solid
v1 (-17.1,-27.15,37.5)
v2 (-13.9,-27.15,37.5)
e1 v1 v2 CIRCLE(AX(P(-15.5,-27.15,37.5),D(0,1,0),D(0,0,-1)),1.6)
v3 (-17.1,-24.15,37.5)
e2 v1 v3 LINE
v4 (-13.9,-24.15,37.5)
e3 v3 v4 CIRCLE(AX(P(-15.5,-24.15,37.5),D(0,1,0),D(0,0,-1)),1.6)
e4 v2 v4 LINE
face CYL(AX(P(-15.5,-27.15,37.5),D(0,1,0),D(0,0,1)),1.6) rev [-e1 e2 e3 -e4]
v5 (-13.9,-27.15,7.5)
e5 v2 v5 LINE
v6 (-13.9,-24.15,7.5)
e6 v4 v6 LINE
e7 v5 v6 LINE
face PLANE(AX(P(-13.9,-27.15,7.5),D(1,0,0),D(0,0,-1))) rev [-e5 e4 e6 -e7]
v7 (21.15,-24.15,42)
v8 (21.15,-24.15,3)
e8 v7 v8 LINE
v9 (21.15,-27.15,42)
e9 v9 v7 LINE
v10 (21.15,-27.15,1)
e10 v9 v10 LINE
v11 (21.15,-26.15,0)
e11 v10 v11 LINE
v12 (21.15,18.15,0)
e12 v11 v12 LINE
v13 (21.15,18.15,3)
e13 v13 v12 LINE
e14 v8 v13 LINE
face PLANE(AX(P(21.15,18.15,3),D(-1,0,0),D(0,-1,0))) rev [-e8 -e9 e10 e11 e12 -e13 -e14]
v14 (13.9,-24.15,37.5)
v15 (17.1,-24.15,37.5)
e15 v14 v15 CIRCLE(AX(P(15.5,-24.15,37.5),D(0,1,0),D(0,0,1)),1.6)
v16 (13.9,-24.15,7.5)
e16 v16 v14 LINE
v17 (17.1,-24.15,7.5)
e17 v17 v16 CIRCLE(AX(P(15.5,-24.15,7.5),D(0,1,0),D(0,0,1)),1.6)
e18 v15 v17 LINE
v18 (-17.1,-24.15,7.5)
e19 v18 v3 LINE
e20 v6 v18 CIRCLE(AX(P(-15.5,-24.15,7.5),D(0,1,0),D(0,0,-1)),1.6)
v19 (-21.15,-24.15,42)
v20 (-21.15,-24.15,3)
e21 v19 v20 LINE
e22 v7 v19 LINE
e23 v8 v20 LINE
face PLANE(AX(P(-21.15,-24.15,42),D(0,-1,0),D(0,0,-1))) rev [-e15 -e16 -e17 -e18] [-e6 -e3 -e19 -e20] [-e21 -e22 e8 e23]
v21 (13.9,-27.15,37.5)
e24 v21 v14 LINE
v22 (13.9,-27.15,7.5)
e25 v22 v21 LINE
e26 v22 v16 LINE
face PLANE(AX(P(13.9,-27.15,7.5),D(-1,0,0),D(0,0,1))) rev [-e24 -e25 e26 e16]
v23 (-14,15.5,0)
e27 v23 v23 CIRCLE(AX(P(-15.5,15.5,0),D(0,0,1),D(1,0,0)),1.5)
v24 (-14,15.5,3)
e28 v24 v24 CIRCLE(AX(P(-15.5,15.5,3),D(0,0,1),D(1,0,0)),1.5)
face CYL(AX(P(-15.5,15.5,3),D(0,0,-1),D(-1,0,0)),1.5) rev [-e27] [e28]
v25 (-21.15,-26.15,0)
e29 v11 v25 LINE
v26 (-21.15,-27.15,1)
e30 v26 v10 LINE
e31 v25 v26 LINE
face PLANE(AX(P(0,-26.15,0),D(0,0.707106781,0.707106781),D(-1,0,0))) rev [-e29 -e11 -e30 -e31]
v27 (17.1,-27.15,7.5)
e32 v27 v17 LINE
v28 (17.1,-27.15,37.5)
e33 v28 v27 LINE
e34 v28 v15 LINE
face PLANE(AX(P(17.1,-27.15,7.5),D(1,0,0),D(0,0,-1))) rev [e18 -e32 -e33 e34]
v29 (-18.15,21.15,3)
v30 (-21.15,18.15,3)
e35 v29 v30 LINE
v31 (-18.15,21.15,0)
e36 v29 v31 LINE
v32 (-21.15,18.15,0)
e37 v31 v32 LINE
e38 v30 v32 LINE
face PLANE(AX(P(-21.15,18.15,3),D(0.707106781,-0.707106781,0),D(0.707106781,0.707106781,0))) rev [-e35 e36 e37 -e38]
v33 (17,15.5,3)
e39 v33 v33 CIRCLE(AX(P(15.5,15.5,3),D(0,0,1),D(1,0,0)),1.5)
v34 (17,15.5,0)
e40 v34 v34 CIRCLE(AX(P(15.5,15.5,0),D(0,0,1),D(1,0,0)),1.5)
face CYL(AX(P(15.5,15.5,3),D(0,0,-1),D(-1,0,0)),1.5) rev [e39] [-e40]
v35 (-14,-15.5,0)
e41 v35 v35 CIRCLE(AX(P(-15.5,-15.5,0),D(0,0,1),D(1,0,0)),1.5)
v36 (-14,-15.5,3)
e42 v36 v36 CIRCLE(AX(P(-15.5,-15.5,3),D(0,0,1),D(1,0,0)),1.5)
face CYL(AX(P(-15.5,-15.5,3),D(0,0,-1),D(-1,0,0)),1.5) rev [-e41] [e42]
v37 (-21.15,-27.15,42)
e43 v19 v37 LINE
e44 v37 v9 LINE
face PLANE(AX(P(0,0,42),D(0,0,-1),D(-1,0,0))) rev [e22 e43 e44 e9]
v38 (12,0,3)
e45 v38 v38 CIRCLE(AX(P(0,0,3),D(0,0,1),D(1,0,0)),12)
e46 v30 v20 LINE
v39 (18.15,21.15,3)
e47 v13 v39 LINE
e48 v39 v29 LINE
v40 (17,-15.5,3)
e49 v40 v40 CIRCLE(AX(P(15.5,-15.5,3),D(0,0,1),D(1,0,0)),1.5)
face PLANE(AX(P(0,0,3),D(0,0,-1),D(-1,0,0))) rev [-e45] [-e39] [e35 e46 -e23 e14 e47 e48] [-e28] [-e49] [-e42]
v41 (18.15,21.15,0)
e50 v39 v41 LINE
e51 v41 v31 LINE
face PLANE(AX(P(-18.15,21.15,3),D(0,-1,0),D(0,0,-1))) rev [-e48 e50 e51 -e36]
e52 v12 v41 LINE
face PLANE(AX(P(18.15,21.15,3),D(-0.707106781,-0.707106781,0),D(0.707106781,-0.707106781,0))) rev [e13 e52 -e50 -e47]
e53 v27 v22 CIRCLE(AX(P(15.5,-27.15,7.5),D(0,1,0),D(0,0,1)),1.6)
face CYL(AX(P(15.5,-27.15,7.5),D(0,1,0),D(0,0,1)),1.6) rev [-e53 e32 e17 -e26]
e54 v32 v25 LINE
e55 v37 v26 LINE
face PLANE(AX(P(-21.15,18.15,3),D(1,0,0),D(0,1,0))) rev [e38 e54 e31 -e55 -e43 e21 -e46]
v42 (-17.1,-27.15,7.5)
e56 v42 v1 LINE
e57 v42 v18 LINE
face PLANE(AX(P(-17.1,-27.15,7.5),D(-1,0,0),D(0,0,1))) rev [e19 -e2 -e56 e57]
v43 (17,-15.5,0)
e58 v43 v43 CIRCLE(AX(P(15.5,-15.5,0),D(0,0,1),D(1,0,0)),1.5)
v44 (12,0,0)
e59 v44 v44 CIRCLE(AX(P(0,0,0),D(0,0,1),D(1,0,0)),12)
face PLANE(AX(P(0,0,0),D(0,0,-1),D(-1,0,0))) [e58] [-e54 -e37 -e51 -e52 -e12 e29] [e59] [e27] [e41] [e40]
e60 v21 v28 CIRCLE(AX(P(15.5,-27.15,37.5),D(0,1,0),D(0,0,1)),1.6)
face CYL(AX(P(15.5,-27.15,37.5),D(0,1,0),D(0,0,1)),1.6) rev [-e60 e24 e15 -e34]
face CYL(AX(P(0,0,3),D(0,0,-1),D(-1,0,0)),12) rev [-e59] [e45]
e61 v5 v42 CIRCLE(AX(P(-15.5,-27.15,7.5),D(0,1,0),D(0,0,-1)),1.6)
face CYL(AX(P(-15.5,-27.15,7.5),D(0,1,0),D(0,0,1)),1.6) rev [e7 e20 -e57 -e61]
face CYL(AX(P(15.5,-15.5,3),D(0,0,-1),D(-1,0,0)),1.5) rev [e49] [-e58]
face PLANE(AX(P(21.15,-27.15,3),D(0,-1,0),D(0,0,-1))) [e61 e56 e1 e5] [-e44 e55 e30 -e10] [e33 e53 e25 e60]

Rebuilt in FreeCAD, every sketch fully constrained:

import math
import FreeCAD as App
import Part
import Sketcher


def edges_at(feature, points):
    """Names of the edges that pass closest to the given points."""
    edges = feature.Shape.Edges
    near = lambda p: min(range(len(edges)), key=lambda i: edges[i].distToShape(Part.Vertex(*p))[0])
    return sorted({f"Edge{near(p) + 1}" for p in points})


def add_polygon(sketch, points):
    """Adds a closed chain of lines whose ends are joined by coincident constraints."""
    first, n = sketch.GeometryCount, len(points)
    for a, b in zip(points, points[1:] + points[:1]):
        sketch.addGeometry(Part.LineSegment(App.Vector(*a, 0), App.Vector(*b, 0)), False)
    for i in range(n):
        sketch.addConstraint(Sketcher.Constraint("Coincident", first + i, 2, first + (i + 1) % n, 1))

doc = App.newDocument("Part")
params = doc.addObject("Spreadsheet::Sheet", "Params")
for row, (alias, value) in enumerate([
    ("sketch1_diameter", "3 mm"),
    ("sketch1_diameter2", "24 mm"),
    ("sketch1_width", "36.3 mm"),
    ("pad1_length", "3 mm"),
    ("sketch2_height", "9 mm"),
    ("sketch2_width", "36.3 mm"),
    ("sketch2_width2", "42.3 mm"),
    ("pad2_length", "3 mm"),
    ("sketch3_height", "3 mm"),
    ("sketch3_width", "42.3 mm"),
    ("pad3_length", "39 mm"),
    ("chamfer_size", "1 mm"),
    ("sketch4_radius", "1.6 mm"),
    ("sketch4_height", "30 mm"),
    ("pocket1_length", "3 mm"),
], start=1):
    params.set(f"A{row}", alias)
    params.set(f"B{row}", "=" + value)
    params.setAlias(f"B{row}", alias)

body = doc.addObject("PartDesign::Body", "Body")

# Sketch on XY plane
sketch1 = body.newObject("Sketcher::SketchObject", "Sketch")
sketch1.AttachmentSupport = (doc.getObject("XY_Plane"), [""])
sketch1.MapMode = "FlatFace"
add_polygon(sketch1, [(-18.1, 21.1), (-21.1, 18.1), (-21.1, -18.1), (-18.1, -21.1), (18.1, -21.1), (21.1, -18.1), (21.1, 18.1), (18.1, 21.1)])  # lines 0-7
sketch1.addGeometry(Part.Circle(App.Vector(15.5, -15.5, 0), App.Vector(0, 0, 1), 1.5), False)  # 8
sketch1.addGeometry(Part.Circle(App.Vector(-15.5, -15.5, 0), App.Vector(0, 0, 1), 1.5), False)  # 9
sketch1.addGeometry(Part.Circle(App.Vector(15.5, 15.5, 0), App.Vector(0, 0, 1), 1.5), False)  # 10
sketch1.addGeometry(Part.Circle(App.Vector(0, 0, 0), App.Vector(0, 0, 1), 12), False)  # 11
sketch1.addGeometry(Part.Circle(App.Vector(-15.5, 15.5, 0), App.Vector(0, 0, 1), 1.5), False)  # 12
sketch1.addConstraint(Sketcher.Constraint("Vertical", 1))
sketch1.addConstraint(Sketcher.Constraint("Horizontal", 3))
sketch1.addConstraint(Sketcher.Constraint("Vertical", 5))
sketch1.addConstraint(Sketcher.Constraint("Horizontal", 7))
sketch1.addConstraint(Sketcher.Constraint("Coincident", 11, 3, -1, 1))
sketch1.addConstraint(Sketcher.Constraint("Equal", 8, 9))
sketch1.addConstraint(Sketcher.Constraint("Equal", 9, 10))
sketch1.addConstraint(Sketcher.Constraint("Equal", 10, 12))
sketch1.addConstraint(Sketcher.Constraint("Symmetric", 9, 3, 10, 3, -1, 1))
sketch1.addConstraint(Sketcher.Constraint("Symmetric", 8, 3, 12, 3, -1, 1))
sketch1.addConstraint(Sketcher.Constraint("Symmetric", 0, 2, 4, 2, -1, 1))
sketch1.addConstraint(Sketcher.Constraint("Symmetric", 2, 2, 6, 2, -1, 1))
sketch1.addConstraint(Sketcher.Constraint("Symmetric", 8, 3, 9, 3, -2))
sketch1.addConstraint(Sketcher.Constraint("Perpendicular", 0, 2))
sketch1.addConstraint(Sketcher.Constraint("Perpendicular", 2, 4))
sketch1.addConstraint(Sketcher.Constraint("Perpendicular", 4, 6))
sketch1.addConstraint(Sketcher.Constraint("Horizontal", 1, 2, 4, 2))
sketch1.addConstraint(Sketcher.Constraint("Vertical", 3, 2, 6, 2))
sketch1.addConstraint(Sketcher.Constraint("Equal", 7, 1))
sketch1.addConstraint(Sketcher.Constraint("Diameter", 8, 3.0))
sketch1.addConstraint(Sketcher.Constraint("Diameter", 11, 24.0))
sketch1.addConstraint(Sketcher.Constraint("DistanceX", 3, 1, 3, 2, 36.3))
sketch1.addConstraint(Sketcher.Constraint("DistanceX", 9, 3, 8, 3, 31.0))
sketch1.addConstraint(Sketcher.Constraint("DistanceY", 8, 3, 10, 3, 31.0))
sketch1.addConstraint(Sketcher.Constraint("DistanceX", 1, 2, 2, 2, 3.0))
sketch1.setExpression("Constraints[27]", "Params.sketch1_diameter")
sketch1.setExpression("Constraints[28]", "Params.sketch1_diameter2")
sketch1.setExpression("Constraints[29]", "Params.sketch1_width")
pad1 = body.newObject("PartDesign::Pad", "Pad")
pad1.Profile = sketch1
pad1.setExpression("Length", "Params.pad1_length")

# Sketch on XY plane
sketch2 = body.newObject("Sketcher::SketchObject", "Sketch001")
sketch2.AttachmentSupport = (doc.getObject("XY_Plane"), [""])
sketch2.MapMode = "FlatFace"
add_polygon(sketch2, [(-21.1, -18.1), (-18.1, -21.1), (18.1, -21.1), (21.1, -18.1), (21.1, -27.1), (-21.1, -27.1)])  # lines 0-5
sketch2.addConstraint(Sketcher.Constraint("Horizontal", 1))
sketch2.addConstraint(Sketcher.Constraint("Vertical", 3))
sketch2.addConstraint(Sketcher.Constraint("Horizontal", 4))
sketch2.addConstraint(Sketcher.Constraint("Vertical", 5))
sketch2.addConstraint(Sketcher.Constraint("Symmetric", 2, 2, 5, 2, -2))
sketch2.addConstraint(Sketcher.Constraint("Perpendicular", 0, 2))
sketch2.addConstraint(Sketcher.Constraint("Equal", 0, 2))
sketch2.addConstraint(Sketcher.Constraint("DistanceY", 3, 2, 3, 1, 9.0))
sketch2.addConstraint(Sketcher.Constraint("DistanceX", 1, 1, 1, 2, 36.3))
sketch2.addConstraint(Sketcher.Constraint("DistanceX", 4, 2, 4, 1, 42.3))
sketch2.addConstraint(Sketcher.Constraint("DistanceY", 0, 2, -1, 1, 21.15))
sketch2.setExpression("Constraints[13]", "Params.sketch2_height")
sketch2.setExpression("Constraints[14]", "Params.sketch2_width")
sketch2.setExpression("Constraints[15]", "Params.sketch2_width2")
pad2 = body.newObject("PartDesign::Pad", "Pad001")
pad2.Profile = sketch2
pad2.setExpression("Length", "Params.pad2_length")

# Sketch on XY plane
sketch3 = body.newObject("Sketcher::SketchObject", "Sketch002")
sketch3.AttachmentSupport = (doc.getObject("XY_Plane"), [""])
sketch3.MapMode = "FlatFace"
sketch3.AttachmentOffset = App.Placement(App.Vector(0, 0, 3), App.Rotation())
add_polygon(sketch3, [(-21.1, -24.1), (-21.1, -27.1), (21.1, -27.1), (21.1, -24.1)])  # lines 0-3
sketch3.addConstraint(Sketcher.Constraint("Vertical", 0))
sketch3.addConstraint(Sketcher.Constraint("Horizontal", 1))
sketch3.addConstraint(Sketcher.Constraint("Vertical", 2))
sketch3.addConstraint(Sketcher.Constraint("Horizontal", 3))
sketch3.addConstraint(Sketcher.Constraint("DistanceY", 0, 2, 0, 1, 3.0))
sketch3.addConstraint(Sketcher.Constraint("DistanceX", 1, 1, 1, 2, 42.3))
sketch3.addConstraint(Sketcher.Constraint("DistanceX", 0, 2, -1, 1, 21.15))
sketch3.addConstraint(Sketcher.Constraint("DistanceY", 0, 2, -1, 1, 27.15))
sketch3.setExpression("Constraints[8]", "Params.sketch3_height")
sketch3.setExpression("Constraints[9]", "Params.sketch3_width")
pad3 = body.newObject("PartDesign::Pad", "Pad002")
pad3.Profile = sketch3
pad3.setExpression("Length", "Params.pad3_length")
doc.recompute()

chamfer = body.newObject("PartDesign::Chamfer", "Chamfer")
chamfer.Base = (pad3, edges_at(pad3, [(0, -27.15, 0)]))
chamfer.setExpression("Size", "Params.chamfer_size")

# Sketch on XZ plane
sketch4 = body.newObject("Sketcher::SketchObject", "Sketch003")
sketch4.AttachmentSupport = (doc.getObject("XZ_Plane"), [""])
sketch4.MapMode = "FlatFace"
sketch4.AttachmentOffset = App.Placement(App.Vector(0, 0, 24.15), App.Rotation())
sketch4.addGeometry(Part.LineSegment(App.Vector(17.1, 37.5, 0), App.Vector(17.1, 7.5, 0)), False)
sketch4.addGeometry(Part.ArcOfCircle(Part.Circle(App.Vector(15.5, 7.5, 0), App.Vector(0, 0, 1), 1.6), math.radians(180), math.radians(360)), False)
sketch4.addGeometry(Part.LineSegment(App.Vector(13.9, 7.5, 0), App.Vector(13.9, 37.5, 0)), False)
sketch4.addGeometry(Part.ArcOfCircle(Part.Circle(App.Vector(15.5, 37.5, 0), App.Vector(0, 0, 1), 1.6), math.radians(0), math.radians(180)), False)
sketch4.addGeometry(Part.LineSegment(App.Vector(-17.1, 7.5, 0), App.Vector(-17.1, 37.5, 0)), False)
sketch4.addGeometry(Part.ArcOfCircle(Part.Circle(App.Vector(-15.5, 37.5, 0), App.Vector(0, 0, 1), 1.6), math.radians(0), math.radians(180)), False)
sketch4.addGeometry(Part.LineSegment(App.Vector(-13.9, 37.5, 0), App.Vector(-13.9, 7.5, 0)), False)
sketch4.addGeometry(Part.ArcOfCircle(Part.Circle(App.Vector(-15.5, 7.5, 0), App.Vector(0, 0, 1), 1.6), math.radians(180), math.radians(360)), False)
sketch4.addConstraint(Sketcher.Constraint("Tangent", 0, 2, 1, 2))
sketch4.addConstraint(Sketcher.Constraint("Tangent", 1, 1, 2, 1))
sketch4.addConstraint(Sketcher.Constraint("Tangent", 2, 2, 3, 2))
sketch4.addConstraint(Sketcher.Constraint("Tangent", 3, 1, 0, 1))
sketch4.addConstraint(Sketcher.Constraint("Tangent", 4, 2, 5, 2))
sketch4.addConstraint(Sketcher.Constraint("Tangent", 5, 1, 6, 1))
sketch4.addConstraint(Sketcher.Constraint("Tangent", 6, 2, 7, 2))
sketch4.addConstraint(Sketcher.Constraint("Tangent", 7, 1, 4, 1))
sketch4.addConstraint(Sketcher.Constraint("Vertical", 0))
sketch4.addConstraint(Sketcher.Constraint("Vertical", 2))
sketch4.addConstraint(Sketcher.Constraint("Vertical", 4))
sketch4.addConstraint(Sketcher.Constraint("Vertical", 6))
sketch4.addConstraint(Sketcher.Constraint("Equal", 3, 5))
sketch4.addConstraint(Sketcher.Constraint("Symmetric", 3, 3, 5, 3, -2))
sketch4.addConstraint(Sketcher.Constraint("Horizontal", 1, 3, 7, 3))
sketch4.addConstraint(Sketcher.Constraint("Radius", 1, 1.6))
sketch4.addConstraint(Sketcher.Constraint("DistanceY", 0, 2, 0, 1, 30.0))
sketch4.addConstraint(Sketcher.Constraint("DistanceX", 5, 3, 3, 3, 31.0))
sketch4.addConstraint(Sketcher.Constraint("DistanceY", -1, 1, 1, 3, 7.5))
sketch4.setExpression("Constraints[15]", "Params.sketch4_radius")
sketch4.setExpression("Constraints[16]", "Params.sketch4_height")
pocket1 = body.newObject("PartDesign::Pocket", "Pocket")
pocket1.Profile = sketch4
pocket1.setExpression("Length", "Params.pocket1_length")
pocket1.Reversed = True

doc.recompute()
